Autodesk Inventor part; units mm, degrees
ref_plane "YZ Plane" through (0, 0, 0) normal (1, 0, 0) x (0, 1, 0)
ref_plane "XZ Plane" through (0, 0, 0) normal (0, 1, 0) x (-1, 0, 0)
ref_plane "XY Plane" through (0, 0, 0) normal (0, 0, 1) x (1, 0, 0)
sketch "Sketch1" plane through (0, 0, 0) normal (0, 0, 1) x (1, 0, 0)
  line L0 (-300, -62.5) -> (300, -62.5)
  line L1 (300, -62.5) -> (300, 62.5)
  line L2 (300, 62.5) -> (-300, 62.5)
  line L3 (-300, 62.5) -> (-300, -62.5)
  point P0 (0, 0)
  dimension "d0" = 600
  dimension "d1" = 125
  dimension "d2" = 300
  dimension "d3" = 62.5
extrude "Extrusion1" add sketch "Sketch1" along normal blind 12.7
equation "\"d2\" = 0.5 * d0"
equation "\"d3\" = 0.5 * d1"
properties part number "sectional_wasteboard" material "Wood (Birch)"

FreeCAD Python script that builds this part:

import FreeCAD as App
import Part
import Sketcher
Q = App.Units.Quantity


def add_polygon(sketch, points):
    """Adds a closed chain of lines whose ends are joined by coincident constraints."""
    first, n = sketch.GeometryCount, len(points)
    for a, b in zip(points, points[1:] + points[:1]):
        sketch.addGeometry(Part.LineSegment(App.Vector(*a, 0), App.Vector(*b, 0)), False)
    for i in range(n):
        sketch.addConstraint(Sketcher.Constraint("Coincident", first + i, 2, first + (i + 1) % n, 1))

doc = App.newDocument("Part")
body = doc.addObject("PartDesign::Body", "Body")

sketch1 = body.newObject("Sketcher::SketchObject", "Sketch")
sketch1.AttachmentSupport = (doc.getObject("XY_Plane"), [""])
sketch1.MapMode = "FlatFace"
add_polygon(sketch1, [(-300, 62), (-300, -62), (300, -62), (300, 62)])
sketch1.addConstraint([
    Sketcher.Constraint("Vertical", 0),
    Sketcher.Constraint("Horizontal", 1),
    Sketcher.Constraint("Vertical", 2),
    Sketcher.Constraint("Horizontal", 3),
    Sketcher.Constraint("Symmetric", 0, 2, 2, 2, -1, 1),
    Sketcher.Constraint("DistanceX", 1, 1, 1, 2, Q("600 mm")),
    Sketcher.Constraint("DistanceY", 0, 2, 0, 1, Q("125 mm")),
])
pad1 = body.newObject("PartDesign::Pad", "Pad")
pad1.Profile = sketch1
pad1.Length = 12.7

doc.recompute()
